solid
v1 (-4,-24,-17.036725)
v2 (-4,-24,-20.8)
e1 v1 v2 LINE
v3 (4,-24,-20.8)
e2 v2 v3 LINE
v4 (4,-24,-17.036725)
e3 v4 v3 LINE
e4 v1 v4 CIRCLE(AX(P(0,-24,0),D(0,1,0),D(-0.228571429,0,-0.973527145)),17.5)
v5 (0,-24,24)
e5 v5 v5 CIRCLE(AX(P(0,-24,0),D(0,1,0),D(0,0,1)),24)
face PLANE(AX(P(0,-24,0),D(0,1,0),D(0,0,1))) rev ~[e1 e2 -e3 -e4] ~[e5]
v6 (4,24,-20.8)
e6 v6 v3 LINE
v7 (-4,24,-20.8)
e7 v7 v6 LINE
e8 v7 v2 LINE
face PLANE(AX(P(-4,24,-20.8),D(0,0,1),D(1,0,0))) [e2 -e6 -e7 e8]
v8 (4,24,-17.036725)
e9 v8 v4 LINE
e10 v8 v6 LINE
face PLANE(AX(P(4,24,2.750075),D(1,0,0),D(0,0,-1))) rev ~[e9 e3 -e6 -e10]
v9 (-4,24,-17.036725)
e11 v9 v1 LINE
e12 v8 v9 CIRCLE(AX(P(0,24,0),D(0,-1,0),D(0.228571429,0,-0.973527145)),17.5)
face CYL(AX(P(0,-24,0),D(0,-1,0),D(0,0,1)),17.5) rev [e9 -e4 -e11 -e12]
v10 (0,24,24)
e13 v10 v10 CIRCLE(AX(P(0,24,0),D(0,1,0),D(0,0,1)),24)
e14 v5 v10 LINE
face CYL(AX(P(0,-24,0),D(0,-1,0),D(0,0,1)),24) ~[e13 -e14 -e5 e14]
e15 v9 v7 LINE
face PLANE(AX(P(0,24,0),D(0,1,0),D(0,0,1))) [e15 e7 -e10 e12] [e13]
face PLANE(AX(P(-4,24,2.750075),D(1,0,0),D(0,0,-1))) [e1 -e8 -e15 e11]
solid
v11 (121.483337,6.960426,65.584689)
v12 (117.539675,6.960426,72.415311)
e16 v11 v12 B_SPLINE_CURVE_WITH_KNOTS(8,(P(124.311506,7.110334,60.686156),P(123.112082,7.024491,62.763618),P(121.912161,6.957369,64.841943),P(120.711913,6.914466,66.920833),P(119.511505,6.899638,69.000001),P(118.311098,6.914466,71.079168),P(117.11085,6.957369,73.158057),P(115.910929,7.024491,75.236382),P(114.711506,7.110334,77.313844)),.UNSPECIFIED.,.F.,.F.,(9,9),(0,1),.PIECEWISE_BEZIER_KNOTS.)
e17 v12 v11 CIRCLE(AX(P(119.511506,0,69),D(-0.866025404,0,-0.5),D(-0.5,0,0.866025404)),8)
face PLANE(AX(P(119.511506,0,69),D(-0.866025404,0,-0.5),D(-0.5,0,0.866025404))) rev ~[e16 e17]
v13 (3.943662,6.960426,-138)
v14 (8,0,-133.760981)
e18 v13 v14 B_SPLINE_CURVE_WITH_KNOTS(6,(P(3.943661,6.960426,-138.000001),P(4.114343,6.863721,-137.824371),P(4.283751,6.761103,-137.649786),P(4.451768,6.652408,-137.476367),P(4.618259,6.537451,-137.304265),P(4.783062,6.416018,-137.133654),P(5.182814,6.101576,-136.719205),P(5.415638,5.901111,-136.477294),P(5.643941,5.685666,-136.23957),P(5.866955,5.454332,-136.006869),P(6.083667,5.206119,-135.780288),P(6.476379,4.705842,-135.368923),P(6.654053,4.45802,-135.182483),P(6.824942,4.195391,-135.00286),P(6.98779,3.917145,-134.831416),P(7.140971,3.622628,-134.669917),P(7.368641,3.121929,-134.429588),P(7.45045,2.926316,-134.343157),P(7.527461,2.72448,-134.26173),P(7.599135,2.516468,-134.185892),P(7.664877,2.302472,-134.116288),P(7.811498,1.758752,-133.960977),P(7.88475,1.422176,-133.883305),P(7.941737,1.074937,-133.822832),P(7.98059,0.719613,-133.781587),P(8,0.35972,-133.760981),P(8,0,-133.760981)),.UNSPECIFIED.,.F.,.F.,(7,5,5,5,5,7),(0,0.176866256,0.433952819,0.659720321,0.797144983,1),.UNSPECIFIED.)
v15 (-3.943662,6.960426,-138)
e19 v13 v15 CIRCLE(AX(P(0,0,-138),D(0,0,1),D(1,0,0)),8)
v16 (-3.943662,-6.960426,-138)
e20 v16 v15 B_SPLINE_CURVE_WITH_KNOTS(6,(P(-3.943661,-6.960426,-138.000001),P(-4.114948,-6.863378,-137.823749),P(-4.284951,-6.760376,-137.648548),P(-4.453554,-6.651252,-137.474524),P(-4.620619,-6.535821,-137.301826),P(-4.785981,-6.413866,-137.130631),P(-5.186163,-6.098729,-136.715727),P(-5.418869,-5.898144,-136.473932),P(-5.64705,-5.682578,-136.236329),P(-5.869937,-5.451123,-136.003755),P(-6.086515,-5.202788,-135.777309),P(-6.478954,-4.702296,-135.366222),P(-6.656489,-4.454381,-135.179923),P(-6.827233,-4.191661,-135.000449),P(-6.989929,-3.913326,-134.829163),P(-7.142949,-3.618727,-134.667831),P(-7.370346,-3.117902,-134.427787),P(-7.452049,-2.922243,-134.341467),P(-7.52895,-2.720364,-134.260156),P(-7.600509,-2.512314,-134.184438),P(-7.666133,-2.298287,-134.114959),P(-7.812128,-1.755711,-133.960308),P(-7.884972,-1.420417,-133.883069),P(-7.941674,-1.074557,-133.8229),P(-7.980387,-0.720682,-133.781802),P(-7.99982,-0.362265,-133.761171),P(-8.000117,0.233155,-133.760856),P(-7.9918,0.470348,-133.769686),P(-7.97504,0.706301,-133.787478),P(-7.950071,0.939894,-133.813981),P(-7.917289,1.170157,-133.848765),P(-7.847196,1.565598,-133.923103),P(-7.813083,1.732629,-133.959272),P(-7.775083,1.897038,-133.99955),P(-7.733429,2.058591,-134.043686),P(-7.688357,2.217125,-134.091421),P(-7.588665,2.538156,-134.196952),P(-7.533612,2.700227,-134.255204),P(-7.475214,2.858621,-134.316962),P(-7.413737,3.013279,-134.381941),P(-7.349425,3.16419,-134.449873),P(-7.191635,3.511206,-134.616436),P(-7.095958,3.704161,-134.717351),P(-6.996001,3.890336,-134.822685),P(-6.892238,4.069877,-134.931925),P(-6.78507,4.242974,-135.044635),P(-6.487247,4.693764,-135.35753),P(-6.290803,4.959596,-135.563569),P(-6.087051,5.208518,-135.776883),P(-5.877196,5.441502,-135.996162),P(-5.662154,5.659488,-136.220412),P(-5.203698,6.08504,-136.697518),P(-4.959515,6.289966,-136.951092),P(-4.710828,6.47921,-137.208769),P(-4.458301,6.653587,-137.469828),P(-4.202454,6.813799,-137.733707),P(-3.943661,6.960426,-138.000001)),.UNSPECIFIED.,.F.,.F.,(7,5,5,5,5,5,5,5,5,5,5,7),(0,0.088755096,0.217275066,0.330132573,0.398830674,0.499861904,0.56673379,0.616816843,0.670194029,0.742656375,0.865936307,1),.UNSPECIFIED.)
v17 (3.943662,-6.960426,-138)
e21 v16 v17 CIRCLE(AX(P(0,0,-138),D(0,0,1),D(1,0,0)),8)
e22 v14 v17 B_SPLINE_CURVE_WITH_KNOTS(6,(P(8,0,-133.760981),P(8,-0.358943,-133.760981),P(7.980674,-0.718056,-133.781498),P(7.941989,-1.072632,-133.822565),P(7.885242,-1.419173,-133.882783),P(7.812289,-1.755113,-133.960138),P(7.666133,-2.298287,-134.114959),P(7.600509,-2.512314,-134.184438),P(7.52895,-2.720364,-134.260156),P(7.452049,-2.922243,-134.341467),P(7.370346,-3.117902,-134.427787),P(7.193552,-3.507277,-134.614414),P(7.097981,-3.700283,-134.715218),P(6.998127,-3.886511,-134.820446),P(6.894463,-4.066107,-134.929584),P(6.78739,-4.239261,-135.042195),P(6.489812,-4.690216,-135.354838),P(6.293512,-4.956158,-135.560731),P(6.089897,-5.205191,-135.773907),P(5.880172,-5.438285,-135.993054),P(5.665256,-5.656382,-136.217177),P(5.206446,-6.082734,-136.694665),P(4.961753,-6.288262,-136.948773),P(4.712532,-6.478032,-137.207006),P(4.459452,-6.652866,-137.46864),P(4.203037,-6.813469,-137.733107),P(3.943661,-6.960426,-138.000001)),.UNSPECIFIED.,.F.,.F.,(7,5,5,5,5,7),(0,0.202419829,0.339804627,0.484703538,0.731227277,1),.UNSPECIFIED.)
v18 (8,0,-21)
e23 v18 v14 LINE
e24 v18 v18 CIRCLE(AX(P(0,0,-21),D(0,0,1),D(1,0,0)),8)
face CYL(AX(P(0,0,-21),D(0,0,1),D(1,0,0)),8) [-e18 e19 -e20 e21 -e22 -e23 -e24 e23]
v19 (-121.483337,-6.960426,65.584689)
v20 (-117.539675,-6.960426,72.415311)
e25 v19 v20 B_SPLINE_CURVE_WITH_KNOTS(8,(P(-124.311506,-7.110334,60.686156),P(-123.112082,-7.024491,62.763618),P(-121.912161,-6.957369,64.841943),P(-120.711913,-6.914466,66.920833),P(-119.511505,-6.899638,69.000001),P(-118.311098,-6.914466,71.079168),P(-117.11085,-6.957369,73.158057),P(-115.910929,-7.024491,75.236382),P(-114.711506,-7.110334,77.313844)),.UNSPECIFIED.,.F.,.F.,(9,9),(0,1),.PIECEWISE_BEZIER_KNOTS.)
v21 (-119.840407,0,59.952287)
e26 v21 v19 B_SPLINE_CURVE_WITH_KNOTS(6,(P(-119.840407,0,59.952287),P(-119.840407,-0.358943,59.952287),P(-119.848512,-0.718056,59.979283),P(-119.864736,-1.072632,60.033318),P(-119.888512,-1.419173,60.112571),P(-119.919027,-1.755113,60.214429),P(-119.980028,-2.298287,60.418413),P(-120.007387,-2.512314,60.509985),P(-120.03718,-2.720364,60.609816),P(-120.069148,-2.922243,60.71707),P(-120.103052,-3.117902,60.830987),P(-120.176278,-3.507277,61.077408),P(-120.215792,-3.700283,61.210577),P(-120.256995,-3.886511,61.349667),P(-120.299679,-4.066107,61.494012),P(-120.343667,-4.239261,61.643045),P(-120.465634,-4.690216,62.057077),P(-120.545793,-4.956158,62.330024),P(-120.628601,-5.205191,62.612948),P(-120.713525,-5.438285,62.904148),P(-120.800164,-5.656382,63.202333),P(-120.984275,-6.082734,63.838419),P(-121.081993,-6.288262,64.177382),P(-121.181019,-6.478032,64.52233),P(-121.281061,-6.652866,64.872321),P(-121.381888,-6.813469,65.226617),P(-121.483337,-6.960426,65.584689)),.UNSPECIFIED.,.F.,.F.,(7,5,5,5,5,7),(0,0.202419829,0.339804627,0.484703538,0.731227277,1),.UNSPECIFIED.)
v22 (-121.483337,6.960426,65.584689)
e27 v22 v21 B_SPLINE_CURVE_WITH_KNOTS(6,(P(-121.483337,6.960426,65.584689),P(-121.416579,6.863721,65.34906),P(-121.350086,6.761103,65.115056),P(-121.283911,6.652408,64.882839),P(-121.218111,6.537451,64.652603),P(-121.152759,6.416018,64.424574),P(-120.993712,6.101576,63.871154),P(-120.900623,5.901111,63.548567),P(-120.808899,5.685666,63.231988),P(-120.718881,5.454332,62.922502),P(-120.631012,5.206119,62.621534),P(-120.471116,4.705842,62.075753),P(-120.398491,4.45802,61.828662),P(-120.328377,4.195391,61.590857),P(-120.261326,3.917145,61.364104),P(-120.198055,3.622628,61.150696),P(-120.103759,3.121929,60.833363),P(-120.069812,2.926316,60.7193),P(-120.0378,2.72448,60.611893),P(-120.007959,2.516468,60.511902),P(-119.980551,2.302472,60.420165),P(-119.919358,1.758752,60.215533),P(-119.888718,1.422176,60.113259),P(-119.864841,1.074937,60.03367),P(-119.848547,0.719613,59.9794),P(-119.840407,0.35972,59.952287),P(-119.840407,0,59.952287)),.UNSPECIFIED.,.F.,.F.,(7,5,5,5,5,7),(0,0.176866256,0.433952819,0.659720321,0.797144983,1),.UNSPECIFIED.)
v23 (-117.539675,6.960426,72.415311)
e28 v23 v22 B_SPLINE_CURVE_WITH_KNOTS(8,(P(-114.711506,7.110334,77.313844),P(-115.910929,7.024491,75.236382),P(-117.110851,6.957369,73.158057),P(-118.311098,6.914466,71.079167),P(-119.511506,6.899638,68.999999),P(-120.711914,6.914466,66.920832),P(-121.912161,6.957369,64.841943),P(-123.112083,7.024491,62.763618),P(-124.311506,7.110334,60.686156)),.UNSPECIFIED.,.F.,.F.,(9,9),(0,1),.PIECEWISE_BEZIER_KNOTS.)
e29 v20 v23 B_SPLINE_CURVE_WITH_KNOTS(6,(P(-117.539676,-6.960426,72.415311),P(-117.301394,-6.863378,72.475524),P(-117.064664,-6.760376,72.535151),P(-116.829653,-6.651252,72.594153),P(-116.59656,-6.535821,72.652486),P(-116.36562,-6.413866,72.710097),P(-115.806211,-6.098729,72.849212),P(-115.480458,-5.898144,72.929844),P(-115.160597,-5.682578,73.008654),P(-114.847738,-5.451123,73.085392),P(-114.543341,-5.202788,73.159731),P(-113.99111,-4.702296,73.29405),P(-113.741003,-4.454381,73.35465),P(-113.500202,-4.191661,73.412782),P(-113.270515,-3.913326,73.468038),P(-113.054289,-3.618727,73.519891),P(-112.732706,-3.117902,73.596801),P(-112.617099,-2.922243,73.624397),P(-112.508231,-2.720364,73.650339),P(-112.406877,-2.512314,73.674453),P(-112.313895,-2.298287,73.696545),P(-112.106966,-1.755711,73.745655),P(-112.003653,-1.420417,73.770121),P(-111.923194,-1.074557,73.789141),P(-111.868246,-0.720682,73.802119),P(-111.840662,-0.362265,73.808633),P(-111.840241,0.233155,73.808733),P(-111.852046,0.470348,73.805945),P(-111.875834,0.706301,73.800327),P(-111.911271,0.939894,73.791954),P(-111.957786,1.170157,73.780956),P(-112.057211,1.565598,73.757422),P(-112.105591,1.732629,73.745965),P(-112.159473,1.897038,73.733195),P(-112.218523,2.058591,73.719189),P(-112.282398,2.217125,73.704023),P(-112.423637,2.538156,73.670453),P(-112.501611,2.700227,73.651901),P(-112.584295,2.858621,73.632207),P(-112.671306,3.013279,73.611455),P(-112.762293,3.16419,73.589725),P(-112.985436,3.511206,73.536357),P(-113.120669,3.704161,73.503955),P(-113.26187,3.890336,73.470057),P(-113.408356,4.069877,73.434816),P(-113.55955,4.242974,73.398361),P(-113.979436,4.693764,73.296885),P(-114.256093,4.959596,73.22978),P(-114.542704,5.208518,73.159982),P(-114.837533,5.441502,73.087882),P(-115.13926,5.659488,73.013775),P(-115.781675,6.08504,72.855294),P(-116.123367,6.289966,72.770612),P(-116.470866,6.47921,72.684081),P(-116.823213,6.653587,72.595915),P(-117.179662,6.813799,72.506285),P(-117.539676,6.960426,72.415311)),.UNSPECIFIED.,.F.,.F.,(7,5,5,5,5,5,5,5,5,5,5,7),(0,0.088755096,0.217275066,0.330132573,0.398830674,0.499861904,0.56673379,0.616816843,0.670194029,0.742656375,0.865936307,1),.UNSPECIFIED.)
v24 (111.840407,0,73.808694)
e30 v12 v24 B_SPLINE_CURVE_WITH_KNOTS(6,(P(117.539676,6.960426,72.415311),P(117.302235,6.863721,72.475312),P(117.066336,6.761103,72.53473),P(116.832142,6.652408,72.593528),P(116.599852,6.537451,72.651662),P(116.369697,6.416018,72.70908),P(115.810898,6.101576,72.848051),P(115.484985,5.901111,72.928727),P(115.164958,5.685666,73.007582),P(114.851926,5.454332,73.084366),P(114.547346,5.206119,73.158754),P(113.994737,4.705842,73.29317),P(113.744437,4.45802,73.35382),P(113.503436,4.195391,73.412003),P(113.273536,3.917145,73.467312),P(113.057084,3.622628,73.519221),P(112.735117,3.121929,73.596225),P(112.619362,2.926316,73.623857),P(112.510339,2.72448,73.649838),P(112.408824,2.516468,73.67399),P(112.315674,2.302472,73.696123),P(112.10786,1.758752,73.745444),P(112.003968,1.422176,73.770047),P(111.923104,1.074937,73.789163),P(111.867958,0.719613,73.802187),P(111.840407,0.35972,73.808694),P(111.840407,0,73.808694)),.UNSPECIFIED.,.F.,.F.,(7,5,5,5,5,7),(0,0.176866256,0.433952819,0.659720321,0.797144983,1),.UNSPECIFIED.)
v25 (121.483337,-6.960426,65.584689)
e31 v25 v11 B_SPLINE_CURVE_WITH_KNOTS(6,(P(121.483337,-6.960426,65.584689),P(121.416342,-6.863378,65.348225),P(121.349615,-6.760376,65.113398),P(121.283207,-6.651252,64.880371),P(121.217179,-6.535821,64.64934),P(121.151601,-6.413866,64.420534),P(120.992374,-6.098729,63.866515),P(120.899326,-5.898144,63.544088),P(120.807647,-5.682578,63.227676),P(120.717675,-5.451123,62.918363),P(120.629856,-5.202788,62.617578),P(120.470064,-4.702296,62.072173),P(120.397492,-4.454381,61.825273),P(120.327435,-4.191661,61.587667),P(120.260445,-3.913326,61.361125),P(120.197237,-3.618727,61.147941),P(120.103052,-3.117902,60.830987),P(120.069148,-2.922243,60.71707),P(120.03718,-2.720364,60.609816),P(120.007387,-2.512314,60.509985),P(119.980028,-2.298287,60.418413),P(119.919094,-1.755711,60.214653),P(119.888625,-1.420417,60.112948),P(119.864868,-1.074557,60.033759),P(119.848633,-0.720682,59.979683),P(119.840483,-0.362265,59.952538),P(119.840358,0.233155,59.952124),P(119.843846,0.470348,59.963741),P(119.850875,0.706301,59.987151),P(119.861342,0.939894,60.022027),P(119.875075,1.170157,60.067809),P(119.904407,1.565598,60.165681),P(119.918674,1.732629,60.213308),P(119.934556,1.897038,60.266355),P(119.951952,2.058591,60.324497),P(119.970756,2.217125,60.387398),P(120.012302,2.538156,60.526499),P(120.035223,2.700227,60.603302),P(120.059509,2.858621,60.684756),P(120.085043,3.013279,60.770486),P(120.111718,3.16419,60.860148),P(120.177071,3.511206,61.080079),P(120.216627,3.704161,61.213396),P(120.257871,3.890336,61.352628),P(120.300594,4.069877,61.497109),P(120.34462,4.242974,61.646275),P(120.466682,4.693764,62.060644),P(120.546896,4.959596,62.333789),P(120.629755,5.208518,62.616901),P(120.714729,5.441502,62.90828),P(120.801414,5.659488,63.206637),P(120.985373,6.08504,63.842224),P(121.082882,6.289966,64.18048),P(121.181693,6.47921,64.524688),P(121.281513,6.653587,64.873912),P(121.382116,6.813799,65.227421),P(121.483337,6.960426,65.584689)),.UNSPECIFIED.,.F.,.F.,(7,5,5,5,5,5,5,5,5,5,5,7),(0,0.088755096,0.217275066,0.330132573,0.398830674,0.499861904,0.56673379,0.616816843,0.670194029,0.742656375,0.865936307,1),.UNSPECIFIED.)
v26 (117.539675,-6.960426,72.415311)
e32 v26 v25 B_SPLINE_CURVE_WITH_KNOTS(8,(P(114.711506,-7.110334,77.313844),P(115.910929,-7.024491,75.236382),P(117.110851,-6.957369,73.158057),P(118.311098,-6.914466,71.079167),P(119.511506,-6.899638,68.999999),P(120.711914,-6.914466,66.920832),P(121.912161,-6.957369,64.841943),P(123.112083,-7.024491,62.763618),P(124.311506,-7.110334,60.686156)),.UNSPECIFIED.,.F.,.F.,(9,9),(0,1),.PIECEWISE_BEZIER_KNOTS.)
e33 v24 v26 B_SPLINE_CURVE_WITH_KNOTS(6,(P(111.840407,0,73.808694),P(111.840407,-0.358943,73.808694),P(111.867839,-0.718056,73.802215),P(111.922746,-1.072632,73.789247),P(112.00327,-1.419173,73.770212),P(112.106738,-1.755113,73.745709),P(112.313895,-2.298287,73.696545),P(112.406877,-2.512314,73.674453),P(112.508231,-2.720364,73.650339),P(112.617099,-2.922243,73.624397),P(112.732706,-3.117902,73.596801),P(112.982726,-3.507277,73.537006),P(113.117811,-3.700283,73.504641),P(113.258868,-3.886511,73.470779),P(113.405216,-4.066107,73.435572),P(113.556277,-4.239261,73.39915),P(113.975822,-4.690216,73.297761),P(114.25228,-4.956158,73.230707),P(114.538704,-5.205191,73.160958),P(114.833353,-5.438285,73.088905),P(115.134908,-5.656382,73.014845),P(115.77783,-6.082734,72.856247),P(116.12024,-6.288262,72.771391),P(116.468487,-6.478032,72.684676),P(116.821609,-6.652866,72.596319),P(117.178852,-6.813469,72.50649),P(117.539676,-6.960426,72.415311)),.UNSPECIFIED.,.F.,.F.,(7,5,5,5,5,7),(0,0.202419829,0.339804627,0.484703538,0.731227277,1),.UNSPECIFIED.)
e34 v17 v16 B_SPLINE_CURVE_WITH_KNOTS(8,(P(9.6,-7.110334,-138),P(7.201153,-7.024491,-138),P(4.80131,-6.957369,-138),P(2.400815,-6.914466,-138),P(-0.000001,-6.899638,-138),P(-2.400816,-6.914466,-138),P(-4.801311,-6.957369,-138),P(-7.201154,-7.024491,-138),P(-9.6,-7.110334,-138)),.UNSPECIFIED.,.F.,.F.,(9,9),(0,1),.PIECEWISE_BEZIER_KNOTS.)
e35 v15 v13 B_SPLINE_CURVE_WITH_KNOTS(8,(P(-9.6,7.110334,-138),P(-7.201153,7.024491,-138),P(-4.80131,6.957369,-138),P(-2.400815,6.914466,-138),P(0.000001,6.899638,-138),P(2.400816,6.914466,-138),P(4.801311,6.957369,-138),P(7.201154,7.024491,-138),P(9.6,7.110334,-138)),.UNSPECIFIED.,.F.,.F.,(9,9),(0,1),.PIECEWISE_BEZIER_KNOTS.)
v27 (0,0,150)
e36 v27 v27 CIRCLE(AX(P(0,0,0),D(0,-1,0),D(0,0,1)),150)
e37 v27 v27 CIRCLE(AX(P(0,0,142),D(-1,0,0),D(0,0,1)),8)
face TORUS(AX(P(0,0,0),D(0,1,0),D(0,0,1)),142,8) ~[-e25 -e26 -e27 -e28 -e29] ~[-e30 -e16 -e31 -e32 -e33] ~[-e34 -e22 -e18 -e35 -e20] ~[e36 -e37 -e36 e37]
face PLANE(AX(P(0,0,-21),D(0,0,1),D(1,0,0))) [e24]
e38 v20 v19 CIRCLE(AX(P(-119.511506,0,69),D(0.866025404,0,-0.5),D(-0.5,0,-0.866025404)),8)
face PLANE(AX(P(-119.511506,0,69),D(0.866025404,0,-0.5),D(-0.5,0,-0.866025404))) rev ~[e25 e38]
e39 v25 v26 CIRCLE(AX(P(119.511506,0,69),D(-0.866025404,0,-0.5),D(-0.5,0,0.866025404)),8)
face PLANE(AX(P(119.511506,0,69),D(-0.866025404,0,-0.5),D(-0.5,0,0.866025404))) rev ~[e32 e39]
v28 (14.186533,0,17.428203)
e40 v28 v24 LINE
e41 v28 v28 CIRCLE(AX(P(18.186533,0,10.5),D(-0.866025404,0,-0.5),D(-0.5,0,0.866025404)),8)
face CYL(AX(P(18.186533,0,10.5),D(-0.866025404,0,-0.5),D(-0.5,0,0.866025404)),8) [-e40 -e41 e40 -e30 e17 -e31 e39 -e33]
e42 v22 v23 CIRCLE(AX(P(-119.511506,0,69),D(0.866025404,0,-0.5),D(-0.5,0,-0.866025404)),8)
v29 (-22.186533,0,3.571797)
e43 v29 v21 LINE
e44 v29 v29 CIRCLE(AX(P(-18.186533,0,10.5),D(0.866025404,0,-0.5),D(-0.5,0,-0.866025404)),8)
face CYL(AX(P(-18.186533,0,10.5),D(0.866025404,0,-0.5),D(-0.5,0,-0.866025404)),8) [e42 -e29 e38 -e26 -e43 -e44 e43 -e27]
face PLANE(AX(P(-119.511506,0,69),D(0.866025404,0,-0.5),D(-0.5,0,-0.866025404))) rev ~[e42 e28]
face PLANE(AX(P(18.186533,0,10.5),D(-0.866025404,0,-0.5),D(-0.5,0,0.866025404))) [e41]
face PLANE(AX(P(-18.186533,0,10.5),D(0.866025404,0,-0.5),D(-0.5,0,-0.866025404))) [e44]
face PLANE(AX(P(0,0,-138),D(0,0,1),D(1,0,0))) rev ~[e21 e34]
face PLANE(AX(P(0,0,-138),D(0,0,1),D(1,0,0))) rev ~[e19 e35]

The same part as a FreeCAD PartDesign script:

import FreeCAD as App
import Part
import Sketcher

V = App.Vector
Q = App.Units.Quantity

doc = App.newDocument("Part")
body = doc.addObject("PartDesign::Body", "Body")

sketch1 = body.newObject("Sketcher::SketchObject", "Sketch")
sketch1.AttachmentSupport = (doc.getObject("XY_Plane"), [""])
sketch1.MapMode = "FlatFace"
sketch1.addGeometry(Part.Circle(V(142, 0, 0), V(0, 0, 1), 8), False)
sketch1.addConstraint([
    Sketcher.Constraint("PointOnObject", 0, 3, -1),
    Sketcher.Constraint("Diameter", 0, Q("16 mm")),
    Sketcher.Constraint("DistanceX", -1, 1, 0, 3, Q("142 mm")),
])
revolution = body.newObject("PartDesign::Revolution", "Revolution")
revolution.Profile = sketch1
revolution.ReferenceAxis = (sketch1, ["V_Axis"])
revolution.Angle = 360

sketch2 = body.newObject("Sketcher::SketchObject", "Sketch001")
sketch2.AttachmentSupport = (doc.getObject("XY_Plane"), [""])
sketch2.MapMode = "FlatFace"
sketch2.AttachmentOffset = App.Placement(V(0, 0, -21), App.Rotation())
sketch2.addGeometry(Part.Circle(V(0, 0, 0), V(0, 0, 1), 8), False)
sketch2.addConstraint([
    Sketcher.Constraint("Coincident", 0, 3, -1, 1),
    Sketcher.Constraint("Diameter", 0, Q("16 mm")),
])
pad1 = body.newObject("PartDesign::Pad", "Pad")
pad1.Profile = sketch2
pad1.Length = 117
pad1.Reversed = True
doc.recompute()

polarpattern = body.newObject("PartDesign::PolarPattern", "PolarPattern")
polarpattern.Originals = [pad1]
polarpattern.Axis = (doc.getObject("Y_Axis"), [""])
polarpattern.Angle = 360
polarpattern.Occurrences = 3
body.Tip = polarpattern
body2 = doc.addObject("PartDesign::Body", "Body001")

sketch3 = body2.newObject("Sketcher::SketchObject", "Sketch002")
sketch3.AttachmentSupport = (doc.getObject("XZ_Plane001"), [""])
sketch3.MapMode = "FlatFace"
sketch3.addGeometry([
    Part.Circle(V(0, 0, 0), V(0, 0, 1), 24),
    Part.Circle(V(0, 0, 0), V(0, 0, 1), 18),
], False)
sketch3.addConstraint([
    Sketcher.Constraint("Coincident", 0, 3, -1, 1),
    Sketcher.Constraint("Coincident", 1, 3, -1, 1),
    Sketcher.Constraint("Diameter", 0, Q("48 mm")),
    Sketcher.Constraint("Diameter", 1, Q("35 mm")),
])
pad2 = body2.newObject("PartDesign::Pad", "Pad001")
pad2.Profile = sketch3
pad2.Type = "TwoLengths"
pad2.Length = 24
pad2.Length2 = 24
pad2.Reversed = True

sketch4 = body2.newObject("Sketcher::SketchObject", "Sketch003")
sketch4.AttachmentSupport = (doc.getObject("XZ_Plane001"), [""])
sketch4.MapMode = "FlatFace"
sketch4.AttachmentOffset = App.Placement(V(0, 0, -24), App.Rotation())
sketch4.addGeometry([
    Part.LineSegment(V(-4, -21, 0), V(-4, 3, 0)),
    Part.LineSegment(V(-4, 3, 0), V(4, 3, 0)),
    Part.LineSegment(V(4, 3, 0), V(4, -21, 0)),
    Part.LineSegment(V(4, -21, 0), V(-4, -21, 0)),
], False)
sketch4.addConstraint([
    Sketcher.Constraint("Coincident", 0, 2, 1, 1),
    Sketcher.Constraint("Coincident", 1, 2, 2, 1),
    Sketcher.Constraint("Coincident", 2, 2, 3, 1),
    Sketcher.Constraint("Coincident", 3, 2, 0, 1),
    Sketcher.Constraint("Vertical", 0),
    Sketcher.Constraint("Horizontal", 1),
    Sketcher.Constraint("Vertical", 2),
    Sketcher.Constraint("Horizontal", 3),
    Sketcher.Constraint("DistanceX", 1, 1, 1, 2, Q("8 mm")),
    Sketcher.Constraint("DistanceX", 0, 2, -1, 1, Q("4 mm")),
    Sketcher.Constraint("DistanceY", 2, 2, -1, 1, Q("20.8 mm")),
    Sketcher.Constraint("DistanceY", 0, 1, 0, 2, Q("23.550075 mm")),
])
pocket1 = body2.newObject("PartDesign::Pocket", "Pocket")
pocket1.Profile = sketch4
pocket1.Length = 105
pocket1.Reversed = True

doc.recompute()
